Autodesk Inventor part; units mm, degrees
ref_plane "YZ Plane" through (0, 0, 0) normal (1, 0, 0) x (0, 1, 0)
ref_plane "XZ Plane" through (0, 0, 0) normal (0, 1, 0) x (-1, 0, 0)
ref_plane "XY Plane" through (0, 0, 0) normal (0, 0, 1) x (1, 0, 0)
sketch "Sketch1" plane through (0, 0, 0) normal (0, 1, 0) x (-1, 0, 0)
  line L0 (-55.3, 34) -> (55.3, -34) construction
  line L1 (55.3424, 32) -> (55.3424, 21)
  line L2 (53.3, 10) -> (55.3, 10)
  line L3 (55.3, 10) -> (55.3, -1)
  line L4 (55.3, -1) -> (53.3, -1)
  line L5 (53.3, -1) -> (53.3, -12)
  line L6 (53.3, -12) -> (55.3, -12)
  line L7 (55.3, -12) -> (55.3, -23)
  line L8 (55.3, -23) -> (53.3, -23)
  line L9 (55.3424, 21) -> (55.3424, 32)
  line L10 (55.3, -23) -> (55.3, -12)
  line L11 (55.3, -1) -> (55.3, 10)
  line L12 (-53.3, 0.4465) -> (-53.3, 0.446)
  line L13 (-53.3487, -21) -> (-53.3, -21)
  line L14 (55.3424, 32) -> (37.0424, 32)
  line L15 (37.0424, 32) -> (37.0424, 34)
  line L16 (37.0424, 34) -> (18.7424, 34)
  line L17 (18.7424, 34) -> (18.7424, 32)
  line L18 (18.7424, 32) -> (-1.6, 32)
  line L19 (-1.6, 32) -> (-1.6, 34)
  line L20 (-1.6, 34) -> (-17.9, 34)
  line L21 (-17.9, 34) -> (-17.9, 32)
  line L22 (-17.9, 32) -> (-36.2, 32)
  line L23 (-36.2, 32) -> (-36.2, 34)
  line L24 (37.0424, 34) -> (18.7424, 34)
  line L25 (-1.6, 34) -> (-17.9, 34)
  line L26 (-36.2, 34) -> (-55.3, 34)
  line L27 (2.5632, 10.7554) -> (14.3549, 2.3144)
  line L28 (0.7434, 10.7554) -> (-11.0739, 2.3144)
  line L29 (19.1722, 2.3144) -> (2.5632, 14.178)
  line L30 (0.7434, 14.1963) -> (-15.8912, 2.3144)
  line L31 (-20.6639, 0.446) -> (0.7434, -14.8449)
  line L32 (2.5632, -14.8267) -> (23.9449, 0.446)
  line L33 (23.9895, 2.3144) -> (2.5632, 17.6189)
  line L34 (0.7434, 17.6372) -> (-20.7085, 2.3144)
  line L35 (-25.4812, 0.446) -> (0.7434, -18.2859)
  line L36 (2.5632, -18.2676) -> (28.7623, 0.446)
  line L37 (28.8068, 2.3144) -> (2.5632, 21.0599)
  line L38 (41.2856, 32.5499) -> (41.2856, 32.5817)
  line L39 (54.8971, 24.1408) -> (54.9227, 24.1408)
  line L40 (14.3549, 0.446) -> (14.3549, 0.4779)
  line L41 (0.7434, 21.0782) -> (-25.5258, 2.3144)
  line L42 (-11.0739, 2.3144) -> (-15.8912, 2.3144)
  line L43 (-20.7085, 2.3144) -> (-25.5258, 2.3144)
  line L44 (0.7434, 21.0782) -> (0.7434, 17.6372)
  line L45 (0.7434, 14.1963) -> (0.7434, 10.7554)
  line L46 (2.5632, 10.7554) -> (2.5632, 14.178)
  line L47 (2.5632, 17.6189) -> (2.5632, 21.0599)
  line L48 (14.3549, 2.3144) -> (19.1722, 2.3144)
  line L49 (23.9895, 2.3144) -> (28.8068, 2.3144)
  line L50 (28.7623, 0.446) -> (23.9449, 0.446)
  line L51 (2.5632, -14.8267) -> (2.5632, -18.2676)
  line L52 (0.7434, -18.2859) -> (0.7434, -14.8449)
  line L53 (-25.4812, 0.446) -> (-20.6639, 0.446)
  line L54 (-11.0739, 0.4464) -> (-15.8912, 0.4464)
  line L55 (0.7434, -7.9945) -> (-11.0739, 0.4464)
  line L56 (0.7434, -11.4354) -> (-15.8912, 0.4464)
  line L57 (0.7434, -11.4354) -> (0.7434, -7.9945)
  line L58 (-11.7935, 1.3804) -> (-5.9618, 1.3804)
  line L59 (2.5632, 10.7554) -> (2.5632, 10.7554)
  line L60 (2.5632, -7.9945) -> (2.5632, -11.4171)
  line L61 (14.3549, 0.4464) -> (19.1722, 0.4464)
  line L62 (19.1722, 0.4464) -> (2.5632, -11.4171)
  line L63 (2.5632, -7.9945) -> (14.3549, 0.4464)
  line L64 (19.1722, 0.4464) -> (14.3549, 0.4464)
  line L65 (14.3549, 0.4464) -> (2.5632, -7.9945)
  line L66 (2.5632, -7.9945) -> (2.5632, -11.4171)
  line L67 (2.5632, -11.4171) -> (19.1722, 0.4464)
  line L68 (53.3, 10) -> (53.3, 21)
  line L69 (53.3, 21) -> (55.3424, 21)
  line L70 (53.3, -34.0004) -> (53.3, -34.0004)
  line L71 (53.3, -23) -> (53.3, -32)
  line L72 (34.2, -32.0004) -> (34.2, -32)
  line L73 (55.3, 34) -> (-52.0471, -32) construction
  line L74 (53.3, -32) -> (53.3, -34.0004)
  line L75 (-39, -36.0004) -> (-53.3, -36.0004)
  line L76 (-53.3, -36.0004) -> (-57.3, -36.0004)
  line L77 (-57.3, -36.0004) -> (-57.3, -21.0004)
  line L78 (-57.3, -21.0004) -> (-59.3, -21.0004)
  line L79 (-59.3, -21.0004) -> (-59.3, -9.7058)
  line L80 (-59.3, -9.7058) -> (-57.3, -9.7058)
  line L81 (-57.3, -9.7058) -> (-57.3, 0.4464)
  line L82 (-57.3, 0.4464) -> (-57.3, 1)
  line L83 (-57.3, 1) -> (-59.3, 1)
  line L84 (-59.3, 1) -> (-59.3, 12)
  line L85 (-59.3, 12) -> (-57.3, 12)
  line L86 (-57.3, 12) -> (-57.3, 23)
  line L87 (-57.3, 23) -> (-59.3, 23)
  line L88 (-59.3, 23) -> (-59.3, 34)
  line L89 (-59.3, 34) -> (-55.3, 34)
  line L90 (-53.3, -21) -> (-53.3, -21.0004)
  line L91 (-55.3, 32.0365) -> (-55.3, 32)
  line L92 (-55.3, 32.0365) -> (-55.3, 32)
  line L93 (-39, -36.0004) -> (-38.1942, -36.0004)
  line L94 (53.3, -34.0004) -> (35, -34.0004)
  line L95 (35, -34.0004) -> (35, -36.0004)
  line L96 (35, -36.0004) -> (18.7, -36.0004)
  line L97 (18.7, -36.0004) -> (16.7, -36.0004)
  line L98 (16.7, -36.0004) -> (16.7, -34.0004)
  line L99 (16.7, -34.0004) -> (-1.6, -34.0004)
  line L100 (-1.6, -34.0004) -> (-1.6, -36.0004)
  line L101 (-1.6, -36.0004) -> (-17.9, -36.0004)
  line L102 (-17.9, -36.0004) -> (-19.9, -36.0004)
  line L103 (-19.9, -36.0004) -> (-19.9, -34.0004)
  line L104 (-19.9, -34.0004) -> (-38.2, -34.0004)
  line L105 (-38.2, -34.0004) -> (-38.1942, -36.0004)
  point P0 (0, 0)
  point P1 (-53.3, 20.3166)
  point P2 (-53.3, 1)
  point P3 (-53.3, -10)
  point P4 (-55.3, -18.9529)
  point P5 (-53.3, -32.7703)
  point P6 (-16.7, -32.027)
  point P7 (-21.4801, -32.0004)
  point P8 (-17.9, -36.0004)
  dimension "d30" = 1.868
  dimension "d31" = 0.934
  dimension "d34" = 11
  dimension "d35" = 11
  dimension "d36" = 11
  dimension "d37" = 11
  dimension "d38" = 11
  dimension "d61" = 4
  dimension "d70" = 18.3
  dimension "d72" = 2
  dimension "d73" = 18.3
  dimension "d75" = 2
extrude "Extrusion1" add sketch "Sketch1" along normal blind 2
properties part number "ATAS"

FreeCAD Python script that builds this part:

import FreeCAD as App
import Part
import Sketcher

V = App.Vector


def add_polygon(sketch, points):
    """Adds a closed chain of lines whose ends are joined by coincident constraints."""
    first, n = sketch.GeometryCount, len(points)
    for a, b in zip(points, points[1:] + points[:1]):
        sketch.addGeometry(Part.LineSegment(App.Vector(*a, 0), App.Vector(*b, 0)), False)
    for i in range(n):
        sketch.addConstraint(Sketcher.Constraint("Coincident", first + i, 2, first + (i + 1) % n, 1))

doc = App.newDocument("Part")
body = doc.addObject("PartDesign::Body", "Body")

# Sketch on XZ plane
sketch1 = doc.addObject("Sketcher::SketchObject", "Sketch")
body.addObject(sketch1)
sketch1.AttachmentSupport = (doc.XZ_Plane, [""])
sketch1.MapMode = "FlatFace"
add_polygon(sketch1, [(-55.3, 21), (-55.3, 32), (-37, 32), (-37, 34), (-18.7, 34), (-18.7, 32), (1.6, 32), (1.6, 34), (17.9, 34), (17.9, 32), (36.2, 32), (36.2, 34), (59.3, 34), (59.3, 23), (57.3, 23), (57.3, 12), (59.3, 12), (59.3, 1), (57.3, 1), (57.3, -9.7), (59.3, -9.7), (59.3, -21), (57.3, -21), (57.3, -36), (38.2, -36), (38.2, -34), (19.9, -34), (19.9, -36), (1.6, -36), (1.6, -34), (-16.7, -34), (-16.7, -36), (-35, -36), (-35, -34), (-53.3, -34), (-53.3, -23), (-55.3, -23), (-55.3, -12), (-53.3, -12), (-53.3, -1), (-55.3, -1), (-55.3, 10), (-53.3, 10), (-53.3, 21)])  # lines 0-43
add_polygon(sketch1, [(25.5, 0.4), (20.7, 0.4), (-0.7, -14.8), (-0.7, -18.3)])  # lines 44-47
add_polygon(sketch1, [(15.9, 0.4), (11.1, 0.4), (-0.7, -8), (-0.7, -11.4)])  # lines 48-51
add_polygon(sketch1, [(-2.6, -11.4), (-2.6, -8), (-14.4, 0.4), (-19.2, 0.4)])  # lines 52-55
add_polygon(sketch1, [(-2.6, -18.3), (-2.6, -14.8), (-23.9, 0.4), (-28.8, 0.4)])  # lines 56-59
add_polygon(sketch1, [(-0.7, 21.1), (-0.7, 17.6), (20.7, 2.3), (25.5, 2.3)])  # lines 60-63
add_polygon(sketch1, [(-0.7, 14.2), (-0.7, 10.8), (11.1, 2.3), (15.9, 2.3)])  # lines 64-67
add_polygon(sketch1, [(-14.4, 2.3), (-2.6, 10.8), (-2.6, 14.2), (-19.2, 2.3)])  # lines 68-71
add_polygon(sketch1, [(-28.8, 2.3), (-24, 2.3), (-2.6, 17.6), (-2.6, 21.1)])  # lines 72-75
sketch1.addConstraint(Sketcher.Constraint("Vertical", 0))
sketch1.addConstraint(Sketcher.Constraint("Horizontal", 1))
sketch1.addConstraint(Sketcher.Constraint("Vertical", 2))
sketch1.addConstraint(Sketcher.Constraint("Horizontal", 3))
sketch1.addConstraint(Sketcher.Constraint("Vertical", 4))
sketch1.addConstraint(Sketcher.Constraint("Horizontal", 5))
sketch1.addConstraint(Sketcher.Constraint("Vertical", 6))
sketch1.addConstraint(Sketcher.Constraint("Horizontal", 7))
sketch1.addConstraint(Sketcher.Constraint("Vertical", 8))
sketch1.addConstraint(Sketcher.Constraint("Horizontal", 9))
sketch1.addConstraint(Sketcher.Constraint("Vertical", 10))
sketch1.addConstraint(Sketcher.Constraint("Horizontal", 11))
sketch1.addConstraint(Sketcher.Constraint("Vertical", 12))
sketch1.addConstraint(Sketcher.Constraint("Horizontal", 13))
sketch1.addConstraint(Sketcher.Constraint("Vertical", 14))
sketch1.addConstraint(Sketcher.Constraint("Horizontal", 15))
sketch1.addConstraint(Sketcher.Constraint("Vertical", 16))
sketch1.addConstraint(Sketcher.Constraint("Horizontal", 17))
sketch1.addConstraint(Sketcher.Constraint("Vertical", 18))
sketch1.addConstraint(Sketcher.Constraint("Horizontal", 19))
sketch1.addConstraint(Sketcher.Constraint("Vertical", 20))
sketch1.addConstraint(Sketcher.Constraint("Horizontal", 21))
sketch1.addConstraint(Sketcher.Constraint("Vertical", 22))
sketch1.addConstraint(Sketcher.Constraint("Horizontal", 23))
sketch1.addConstraint(Sketcher.Constraint("Horizontal", 25))
sketch1.addConstraint(Sketcher.Constraint("Vertical", 26))
sketch1.addConstraint(Sketcher.Constraint("Horizontal", 27))
sketch1.addConstraint(Sketcher.Constraint("Vertical", 28))
sketch1.addConstraint(Sketcher.Constraint("Horizontal", 29))
sketch1.addConstraint(Sketcher.Constraint("Vertical", 30))
sketch1.addConstraint(Sketcher.Constraint("Horizontal", 31))
sketch1.addConstraint(Sketcher.Constraint("Vertical", 32))
sketch1.addConstraint(Sketcher.Constraint("Horizontal", 33))
sketch1.addConstraint(Sketcher.Constraint("Vertical", 34))
sketch1.addConstraint(Sketcher.Constraint("Horizontal", 35))
sketch1.addConstraint(Sketcher.Constraint("Vertical", 36))
sketch1.addConstraint(Sketcher.Constraint("Horizontal", 37))
sketch1.addConstraint(Sketcher.Constraint("Vertical", 38))
sketch1.addConstraint(Sketcher.Constraint("Horizontal", 39))
sketch1.addConstraint(Sketcher.Constraint("Vertical", 40))
sketch1.addConstraint(Sketcher.Constraint("Horizontal", 41))
sketch1.addConstraint(Sketcher.Constraint("Vertical", 42))
sketch1.addConstraint(Sketcher.Constraint("Horizontal", 43))
sketch1.addConstraint(Sketcher.Constraint("Horizontal", 44))
sketch1.addConstraint(Sketcher.Constraint("Vertical", 46))
sketch1.addConstraint(Sketcher.Constraint("Horizontal", 48))
sketch1.addConstraint(Sketcher.Constraint("Vertical", 50))
sketch1.addConstraint(Sketcher.Constraint("Vertical", 52))
sketch1.addConstraint(Sketcher.Constraint("Vertical", 56))
sketch1.addConstraint(Sketcher.Constraint("Horizontal", 58))
sketch1.addConstraint(Sketcher.Constraint("Vertical", 60))
sketch1.addConstraint(Sketcher.Constraint("Horizontal", 62))
sketch1.addConstraint(Sketcher.Constraint("Vertical", 64))
sketch1.addConstraint(Sketcher.Constraint("Horizontal", 66))
sketch1.addConstraint(Sketcher.Constraint("Vertical", 69))
sketch1.addConstraint(Sketcher.Constraint("Horizontal", 71))
sketch1.addConstraint(Sketcher.Constraint("Horizontal", 72))
sketch1.addConstraint(Sketcher.Constraint("Vertical", 74))
sketch1.addConstraint(Sketcher.Constraint("Symmetric", 6, 2, 28, 2, -1))
sketch1.addConstraint(Sketcher.Constraint("Parallel", 45, 47))
sketch1.addConstraint(Sketcher.Constraint("Parallel", 47, 49))
sketch1.addConstraint(Sketcher.Constraint("Parallel", 49, 51))
sketch1.addConstraint(Sketcher.Constraint("Parallel", 55, 57))
sketch1.addConstraint(Sketcher.Constraint("Parallel", 57, 59))
sketch1.addConstraint(Sketcher.Constraint("Parallel", 59, 61))
sketch1.addConstraint(Sketcher.Constraint("Parallel", 61, 63))
sketch1.addConstraint(Sketcher.Constraint("Parallel", 63, 65))
sketch1.addConstraint(Sketcher.Constraint("Parallel", 65, 67))
sketch1.addConstraint(Sketcher.Constraint("Parallel", 51, 70))
sketch1.addConstraint(Sketcher.Constraint("Parallel", 70, 73))
sketch1.addConstraint(Sketcher.Constraint("Parallel", 73, 75))
sketch1.addConstraint(Sketcher.Constraint("Horizontal", 1, 2, 4, 2))
sketch1.addConstraint(Sketcher.Constraint("Horizontal", 3, 2, 6, 2))
sketch1.addConstraint(Sketcher.Constraint("Horizontal", 5, 2, 8, 2))
sketch1.addConstraint(Sketcher.Constraint("Horizontal", 7, 2, 10, 2))
sketch1.addConstraint(Sketcher.Constraint("Horizontal", 23, 2, 26, 2))
sketch1.addConstraint(Sketcher.Constraint("Horizontal", 25, 2, 28, 2))
sketch1.addConstraint(Sketcher.Constraint("Horizontal", 27, 2, 30, 2))
sketch1.addConstraint(Sketcher.Constraint("Horizontal", 29, 2, 32, 2))
sketch1.addConstraint(Sketcher.Constraint("Horizontal", 49, 2, 52, 2))
sketch1.addConstraint(Sketcher.Constraint("Horizontal", 47, 2, 53, 2))
sketch1.addConstraint(Sketcher.Constraint("Horizontal", 51, 2, 54, 2))
sketch1.addConstraint(Sketcher.Constraint("Horizontal", 53, 2, 57, 2))
sketch1.addConstraint(Sketcher.Constraint("Horizontal", 62, 2, 65, 2))
sketch1.addConstraint(Sketcher.Constraint("Horizontal", 64, 2, 68, 2))
sketch1.addConstraint(Sketcher.Constraint("Horizontal", 66, 2, 70, 2))
sketch1.addConstraint(Sketcher.Constraint("Horizontal", 71, 2, 72, 2))
sketch1.addConstraint(Sketcher.Constraint("Vertical", 12, 2, 15, 2))
sketch1.addConstraint(Sketcher.Constraint("Vertical", 14, 2, 17, 2))
sketch1.addConstraint(Sketcher.Constraint("Vertical", 16, 2, 19, 2))
sketch1.addConstraint(Sketcher.Constraint("Vertical", 18, 2, 21, 2))
sketch1.addConstraint(Sketcher.Constraint("Vertical", 34, 2, 37, 2))
sketch1.addConstraint(Sketcher.Constraint("Vertical", 36, 2, 39, 2))
sketch1.addConstraint(Sketcher.Constraint("Vertical", 38, 2, 41, 2))
sketch1.addConstraint(Sketcher.Constraint("Vertical", 46, 2, 49, 2))
sketch1.addConstraint(Sketcher.Constraint("Vertical", 55, 2, 56, 2))
sketch1.addConstraint(Sketcher.Constraint("Vertical", 50, 2, 60, 2))
sketch1.addConstraint(Sketcher.Constraint("Vertical", 63, 2, 64, 2))
sketch1.addConstraint(Sketcher.Constraint("Vertical", 48, 2, 65, 2))
sketch1.addConstraint(Sketcher.Constraint("Vertical", 51, 2, 66, 2))
sketch1.addConstraint(Sketcher.Constraint("Vertical", 59, 2, 68, 2))
sketch1.addConstraint(Sketcher.Constraint("Vertical", 54, 2, 70, 2))
sketch1.addConstraint(Sketcher.Constraint("Vertical", 53, 2, 71, 2))
sketch1.addConstraint(Sketcher.Constraint("Vertical", 69, 2, 73, 2))
sketch1.addConstraint(Sketcher.Constraint("Equal", 1, 3))
sketch1.addConstraint(Sketcher.Constraint("Equal", 3, 9))
sketch1.addConstraint(Sketcher.Constraint("Equal", 9, 25))
sketch1.addConstraint(Sketcher.Constraint("Equal", 25, 27))
sketch1.addConstraint(Sketcher.Constraint("Equal", 27, 29))
sketch1.addConstraint(Sketcher.Constraint("Equal", 29, 31))
sketch1.addConstraint(Sketcher.Constraint("Equal", 31, 33))
sketch1.addConstraint(Sketcher.Constraint("Equal", 21, 35))
sketch1.addConstraint(Sketcher.Constraint("Equal", 44, 48))
sketch1.addConstraint(Sketcher.Constraint("Equal", 48, 58))
sketch1.addConstraint(Sketcher.Constraint("Equal", 58, 62))
sketch1.addConstraint(Sketcher.Constraint("Equal", 66, 71))
sketch1.addConstraint(Sketcher.Constraint("Equal", 71, 72))
sketch1.addConstraint(Sketcher.Constraint("Equal", 41, 2))
sketch1.addConstraint(Sketcher.Constraint("Equal", 0, 12))
sketch1.addConstraint(Sketcher.Constraint("Equal", 12, 14))
sketch1.addConstraint(Sketcher.Constraint("Equal", 14, 16))
sketch1.addConstraint(Sketcher.Constraint("Equal", 10, 26))
sketch1.addConstraint(Sketcher.Constraint("Equal", 16, 36))
sketch1.addConstraint(Sketcher.Constraint("Equal", 36, 38))
sketch1.addConstraint(Sketcher.Constraint("Equal", 38, 40))
sketch1.addConstraint(Sketcher.Constraint("Equal", 40, 42))
sketch1.addConstraint(Sketcher.Constraint("Equal", 50, 56))
sketch1.addConstraint(Sketcher.Constraint("DistanceX", 13, 2, 13, 1, 2.0))
sketch1.addConstraint(Sketcher.Constraint("DistanceY", 0, 1, 0, 2, 11.0))
sketch1.addConstraint(Sketcher.Constraint("DistanceX", 1, 1, 1, 2, 18.3))
sketch1.addConstraint(Sketcher.Constraint("DistanceY", 22, 2, 22, 1, 15.0))
sketch1.addConstraint(Sketcher.Constraint("DistanceX", 7, 1, 7, 2, 16.3))
sketch1.addConstraint(Sketcher.Constraint("DistanceX", 11, 1, 11, 2, 23.1))
sketch1.addConstraint(Sketcher.Constraint("DistanceY", 34, 1, 34, 2, 11.0004))
sketch1.addConstraint(Sketcher.Constraint("DistanceX", 31, 2, -1, 1, 35.0))
sketch1.addConstraint(Sketcher.Constraint("DistanceY", 46, 2, 46, 1, 3.441))
sketch1.addConstraint(Sketcher.Constraint("DistanceY", -1, 1, 74, 2, 21.06))
sketch1.addConstraint(Sketcher.Constraint("Distance", 57, 26.276))
sketch1.addConstraint(Sketcher.Constraint("Distance", 75, 32.251))
sketch1.addConstraint(Sketcher.Constraint("DistanceX", 5, 1, 5, 2, 20.3424))
sketch1.addConstraint(Sketcher.Constraint("DistanceX", 23, 2, 23, 1, 19.1058))
sketch1.addConstraint(Sketcher.Constraint("DistanceX", 44, 2, 44, 1, 4.8173))
sketch1.addConstraint(Sketcher.Constraint("DistanceY", 18, 2, 18, 1, 10.7058))
sketch1.addConstraint(Sketcher.Constraint("DistanceY", 52, 1, 52, 2, 3.4226))
sketch1.addConstraint(Sketcher.Constraint("DistanceX", -1, 1, 44, 2, 20.664))
sketch1.addConstraint(Sketcher.Constraint("DistanceY", -1, 1, 44, 2, 0.446))
sketch1.addConstraint(Sketcher.Constraint("DistanceY", 45, 2, -1, 1, 14.845))
sketch1.addConstraint(Sketcher.Constraint("DistanceX", -1, 1, 48, 2, 11.074))
sketch1.addConstraint(Sketcher.Constraint("DistanceX", 53, 2, -1, 1, 14.355))
sketch1.addConstraint(Sketcher.Constraint("DistanceY", 55, 2, -1, 1, 11.417))
sketch1.addConstraint(Sketcher.Constraint("Distance", 61, 26.3623))
pad1 = doc.addObject("PartDesign::Pad", "Pad")
body.addObject(pad1)
pad1.Profile = sketch1
pad1.Length = 2
pad1.Reversed = True

doc.recompute()
